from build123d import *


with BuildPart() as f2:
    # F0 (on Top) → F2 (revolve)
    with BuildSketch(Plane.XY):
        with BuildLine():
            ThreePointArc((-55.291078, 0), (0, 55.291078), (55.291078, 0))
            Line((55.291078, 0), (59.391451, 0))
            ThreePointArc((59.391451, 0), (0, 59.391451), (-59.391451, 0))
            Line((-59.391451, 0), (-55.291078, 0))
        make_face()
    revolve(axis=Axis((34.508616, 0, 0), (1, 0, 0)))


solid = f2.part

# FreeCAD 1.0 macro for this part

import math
import FreeCAD as App
import Part
import Sketcher
from FreeCAD import Vector
Q = App.Units.Quantity

doc = App.newDocument("Part")
body = doc.addObject("PartDesign::Body", "Body")

# Sketch on XY plane
sketch1 = body.newObject("Sketcher::SketchObject", "Sketch")
sketch1.AttachmentSupport = (doc.getObject("XY_Plane"), [""])
sketch1.MapMode = "FlatFace"
sketch1.addGeometry([
    Part.ArcOfCircle(Part.Circle(Vector(0, 0, 0), Vector(0, 0, 1), 55.291078), math.radians(0), math.radians(180)),
    Part.LineSegment(Vector(55.291078, 0, 0), Vector(59.391451, 0, 0)),
    Part.ArcOfCircle(Part.Circle(Vector(0, 0, 0), Vector(0, 0, 1), 59.391451), math.radians(0), math.radians(180)),
    Part.LineSegment(Vector(-59.391451, 0, 0), Vector(-55.291078, 0, 0)),
], False)
sketch1.addConstraint([
    Sketcher.Constraint("Coincident", 0, 1, 1, 1),
    Sketcher.Constraint("Coincident", 1, 2, 2, 1),
    Sketcher.Constraint("Coincident", 2, 2, 3, 1),
    Sketcher.Constraint("Coincident", 3, 2, 0, 2),
    Sketcher.Constraint("Horizontal", 1),
    Sketcher.Constraint("Horizontal", 3),
    Sketcher.Constraint("Coincident", 0, 3, -1, 1),
    Sketcher.Constraint("Coincident", 2, 3, -1, 1),
    Sketcher.Constraint("PointOnObject", 0, 1, -1),
    Sketcher.Constraint("PointOnObject", 2, 2, -1),
    Sketcher.Constraint("Radius", 2, Q("59.391451 mm")),
    Sketcher.Constraint("Radius", 0, Q("55.291078 mm")),
])
revolution = body.newObject("PartDesign::Revolution", "Revolution")
revolution.Profile = sketch1
revolution.ReferenceAxis = (sketch1, ["H_Axis"])
revolution.Angle = 360

doc.recompute()
